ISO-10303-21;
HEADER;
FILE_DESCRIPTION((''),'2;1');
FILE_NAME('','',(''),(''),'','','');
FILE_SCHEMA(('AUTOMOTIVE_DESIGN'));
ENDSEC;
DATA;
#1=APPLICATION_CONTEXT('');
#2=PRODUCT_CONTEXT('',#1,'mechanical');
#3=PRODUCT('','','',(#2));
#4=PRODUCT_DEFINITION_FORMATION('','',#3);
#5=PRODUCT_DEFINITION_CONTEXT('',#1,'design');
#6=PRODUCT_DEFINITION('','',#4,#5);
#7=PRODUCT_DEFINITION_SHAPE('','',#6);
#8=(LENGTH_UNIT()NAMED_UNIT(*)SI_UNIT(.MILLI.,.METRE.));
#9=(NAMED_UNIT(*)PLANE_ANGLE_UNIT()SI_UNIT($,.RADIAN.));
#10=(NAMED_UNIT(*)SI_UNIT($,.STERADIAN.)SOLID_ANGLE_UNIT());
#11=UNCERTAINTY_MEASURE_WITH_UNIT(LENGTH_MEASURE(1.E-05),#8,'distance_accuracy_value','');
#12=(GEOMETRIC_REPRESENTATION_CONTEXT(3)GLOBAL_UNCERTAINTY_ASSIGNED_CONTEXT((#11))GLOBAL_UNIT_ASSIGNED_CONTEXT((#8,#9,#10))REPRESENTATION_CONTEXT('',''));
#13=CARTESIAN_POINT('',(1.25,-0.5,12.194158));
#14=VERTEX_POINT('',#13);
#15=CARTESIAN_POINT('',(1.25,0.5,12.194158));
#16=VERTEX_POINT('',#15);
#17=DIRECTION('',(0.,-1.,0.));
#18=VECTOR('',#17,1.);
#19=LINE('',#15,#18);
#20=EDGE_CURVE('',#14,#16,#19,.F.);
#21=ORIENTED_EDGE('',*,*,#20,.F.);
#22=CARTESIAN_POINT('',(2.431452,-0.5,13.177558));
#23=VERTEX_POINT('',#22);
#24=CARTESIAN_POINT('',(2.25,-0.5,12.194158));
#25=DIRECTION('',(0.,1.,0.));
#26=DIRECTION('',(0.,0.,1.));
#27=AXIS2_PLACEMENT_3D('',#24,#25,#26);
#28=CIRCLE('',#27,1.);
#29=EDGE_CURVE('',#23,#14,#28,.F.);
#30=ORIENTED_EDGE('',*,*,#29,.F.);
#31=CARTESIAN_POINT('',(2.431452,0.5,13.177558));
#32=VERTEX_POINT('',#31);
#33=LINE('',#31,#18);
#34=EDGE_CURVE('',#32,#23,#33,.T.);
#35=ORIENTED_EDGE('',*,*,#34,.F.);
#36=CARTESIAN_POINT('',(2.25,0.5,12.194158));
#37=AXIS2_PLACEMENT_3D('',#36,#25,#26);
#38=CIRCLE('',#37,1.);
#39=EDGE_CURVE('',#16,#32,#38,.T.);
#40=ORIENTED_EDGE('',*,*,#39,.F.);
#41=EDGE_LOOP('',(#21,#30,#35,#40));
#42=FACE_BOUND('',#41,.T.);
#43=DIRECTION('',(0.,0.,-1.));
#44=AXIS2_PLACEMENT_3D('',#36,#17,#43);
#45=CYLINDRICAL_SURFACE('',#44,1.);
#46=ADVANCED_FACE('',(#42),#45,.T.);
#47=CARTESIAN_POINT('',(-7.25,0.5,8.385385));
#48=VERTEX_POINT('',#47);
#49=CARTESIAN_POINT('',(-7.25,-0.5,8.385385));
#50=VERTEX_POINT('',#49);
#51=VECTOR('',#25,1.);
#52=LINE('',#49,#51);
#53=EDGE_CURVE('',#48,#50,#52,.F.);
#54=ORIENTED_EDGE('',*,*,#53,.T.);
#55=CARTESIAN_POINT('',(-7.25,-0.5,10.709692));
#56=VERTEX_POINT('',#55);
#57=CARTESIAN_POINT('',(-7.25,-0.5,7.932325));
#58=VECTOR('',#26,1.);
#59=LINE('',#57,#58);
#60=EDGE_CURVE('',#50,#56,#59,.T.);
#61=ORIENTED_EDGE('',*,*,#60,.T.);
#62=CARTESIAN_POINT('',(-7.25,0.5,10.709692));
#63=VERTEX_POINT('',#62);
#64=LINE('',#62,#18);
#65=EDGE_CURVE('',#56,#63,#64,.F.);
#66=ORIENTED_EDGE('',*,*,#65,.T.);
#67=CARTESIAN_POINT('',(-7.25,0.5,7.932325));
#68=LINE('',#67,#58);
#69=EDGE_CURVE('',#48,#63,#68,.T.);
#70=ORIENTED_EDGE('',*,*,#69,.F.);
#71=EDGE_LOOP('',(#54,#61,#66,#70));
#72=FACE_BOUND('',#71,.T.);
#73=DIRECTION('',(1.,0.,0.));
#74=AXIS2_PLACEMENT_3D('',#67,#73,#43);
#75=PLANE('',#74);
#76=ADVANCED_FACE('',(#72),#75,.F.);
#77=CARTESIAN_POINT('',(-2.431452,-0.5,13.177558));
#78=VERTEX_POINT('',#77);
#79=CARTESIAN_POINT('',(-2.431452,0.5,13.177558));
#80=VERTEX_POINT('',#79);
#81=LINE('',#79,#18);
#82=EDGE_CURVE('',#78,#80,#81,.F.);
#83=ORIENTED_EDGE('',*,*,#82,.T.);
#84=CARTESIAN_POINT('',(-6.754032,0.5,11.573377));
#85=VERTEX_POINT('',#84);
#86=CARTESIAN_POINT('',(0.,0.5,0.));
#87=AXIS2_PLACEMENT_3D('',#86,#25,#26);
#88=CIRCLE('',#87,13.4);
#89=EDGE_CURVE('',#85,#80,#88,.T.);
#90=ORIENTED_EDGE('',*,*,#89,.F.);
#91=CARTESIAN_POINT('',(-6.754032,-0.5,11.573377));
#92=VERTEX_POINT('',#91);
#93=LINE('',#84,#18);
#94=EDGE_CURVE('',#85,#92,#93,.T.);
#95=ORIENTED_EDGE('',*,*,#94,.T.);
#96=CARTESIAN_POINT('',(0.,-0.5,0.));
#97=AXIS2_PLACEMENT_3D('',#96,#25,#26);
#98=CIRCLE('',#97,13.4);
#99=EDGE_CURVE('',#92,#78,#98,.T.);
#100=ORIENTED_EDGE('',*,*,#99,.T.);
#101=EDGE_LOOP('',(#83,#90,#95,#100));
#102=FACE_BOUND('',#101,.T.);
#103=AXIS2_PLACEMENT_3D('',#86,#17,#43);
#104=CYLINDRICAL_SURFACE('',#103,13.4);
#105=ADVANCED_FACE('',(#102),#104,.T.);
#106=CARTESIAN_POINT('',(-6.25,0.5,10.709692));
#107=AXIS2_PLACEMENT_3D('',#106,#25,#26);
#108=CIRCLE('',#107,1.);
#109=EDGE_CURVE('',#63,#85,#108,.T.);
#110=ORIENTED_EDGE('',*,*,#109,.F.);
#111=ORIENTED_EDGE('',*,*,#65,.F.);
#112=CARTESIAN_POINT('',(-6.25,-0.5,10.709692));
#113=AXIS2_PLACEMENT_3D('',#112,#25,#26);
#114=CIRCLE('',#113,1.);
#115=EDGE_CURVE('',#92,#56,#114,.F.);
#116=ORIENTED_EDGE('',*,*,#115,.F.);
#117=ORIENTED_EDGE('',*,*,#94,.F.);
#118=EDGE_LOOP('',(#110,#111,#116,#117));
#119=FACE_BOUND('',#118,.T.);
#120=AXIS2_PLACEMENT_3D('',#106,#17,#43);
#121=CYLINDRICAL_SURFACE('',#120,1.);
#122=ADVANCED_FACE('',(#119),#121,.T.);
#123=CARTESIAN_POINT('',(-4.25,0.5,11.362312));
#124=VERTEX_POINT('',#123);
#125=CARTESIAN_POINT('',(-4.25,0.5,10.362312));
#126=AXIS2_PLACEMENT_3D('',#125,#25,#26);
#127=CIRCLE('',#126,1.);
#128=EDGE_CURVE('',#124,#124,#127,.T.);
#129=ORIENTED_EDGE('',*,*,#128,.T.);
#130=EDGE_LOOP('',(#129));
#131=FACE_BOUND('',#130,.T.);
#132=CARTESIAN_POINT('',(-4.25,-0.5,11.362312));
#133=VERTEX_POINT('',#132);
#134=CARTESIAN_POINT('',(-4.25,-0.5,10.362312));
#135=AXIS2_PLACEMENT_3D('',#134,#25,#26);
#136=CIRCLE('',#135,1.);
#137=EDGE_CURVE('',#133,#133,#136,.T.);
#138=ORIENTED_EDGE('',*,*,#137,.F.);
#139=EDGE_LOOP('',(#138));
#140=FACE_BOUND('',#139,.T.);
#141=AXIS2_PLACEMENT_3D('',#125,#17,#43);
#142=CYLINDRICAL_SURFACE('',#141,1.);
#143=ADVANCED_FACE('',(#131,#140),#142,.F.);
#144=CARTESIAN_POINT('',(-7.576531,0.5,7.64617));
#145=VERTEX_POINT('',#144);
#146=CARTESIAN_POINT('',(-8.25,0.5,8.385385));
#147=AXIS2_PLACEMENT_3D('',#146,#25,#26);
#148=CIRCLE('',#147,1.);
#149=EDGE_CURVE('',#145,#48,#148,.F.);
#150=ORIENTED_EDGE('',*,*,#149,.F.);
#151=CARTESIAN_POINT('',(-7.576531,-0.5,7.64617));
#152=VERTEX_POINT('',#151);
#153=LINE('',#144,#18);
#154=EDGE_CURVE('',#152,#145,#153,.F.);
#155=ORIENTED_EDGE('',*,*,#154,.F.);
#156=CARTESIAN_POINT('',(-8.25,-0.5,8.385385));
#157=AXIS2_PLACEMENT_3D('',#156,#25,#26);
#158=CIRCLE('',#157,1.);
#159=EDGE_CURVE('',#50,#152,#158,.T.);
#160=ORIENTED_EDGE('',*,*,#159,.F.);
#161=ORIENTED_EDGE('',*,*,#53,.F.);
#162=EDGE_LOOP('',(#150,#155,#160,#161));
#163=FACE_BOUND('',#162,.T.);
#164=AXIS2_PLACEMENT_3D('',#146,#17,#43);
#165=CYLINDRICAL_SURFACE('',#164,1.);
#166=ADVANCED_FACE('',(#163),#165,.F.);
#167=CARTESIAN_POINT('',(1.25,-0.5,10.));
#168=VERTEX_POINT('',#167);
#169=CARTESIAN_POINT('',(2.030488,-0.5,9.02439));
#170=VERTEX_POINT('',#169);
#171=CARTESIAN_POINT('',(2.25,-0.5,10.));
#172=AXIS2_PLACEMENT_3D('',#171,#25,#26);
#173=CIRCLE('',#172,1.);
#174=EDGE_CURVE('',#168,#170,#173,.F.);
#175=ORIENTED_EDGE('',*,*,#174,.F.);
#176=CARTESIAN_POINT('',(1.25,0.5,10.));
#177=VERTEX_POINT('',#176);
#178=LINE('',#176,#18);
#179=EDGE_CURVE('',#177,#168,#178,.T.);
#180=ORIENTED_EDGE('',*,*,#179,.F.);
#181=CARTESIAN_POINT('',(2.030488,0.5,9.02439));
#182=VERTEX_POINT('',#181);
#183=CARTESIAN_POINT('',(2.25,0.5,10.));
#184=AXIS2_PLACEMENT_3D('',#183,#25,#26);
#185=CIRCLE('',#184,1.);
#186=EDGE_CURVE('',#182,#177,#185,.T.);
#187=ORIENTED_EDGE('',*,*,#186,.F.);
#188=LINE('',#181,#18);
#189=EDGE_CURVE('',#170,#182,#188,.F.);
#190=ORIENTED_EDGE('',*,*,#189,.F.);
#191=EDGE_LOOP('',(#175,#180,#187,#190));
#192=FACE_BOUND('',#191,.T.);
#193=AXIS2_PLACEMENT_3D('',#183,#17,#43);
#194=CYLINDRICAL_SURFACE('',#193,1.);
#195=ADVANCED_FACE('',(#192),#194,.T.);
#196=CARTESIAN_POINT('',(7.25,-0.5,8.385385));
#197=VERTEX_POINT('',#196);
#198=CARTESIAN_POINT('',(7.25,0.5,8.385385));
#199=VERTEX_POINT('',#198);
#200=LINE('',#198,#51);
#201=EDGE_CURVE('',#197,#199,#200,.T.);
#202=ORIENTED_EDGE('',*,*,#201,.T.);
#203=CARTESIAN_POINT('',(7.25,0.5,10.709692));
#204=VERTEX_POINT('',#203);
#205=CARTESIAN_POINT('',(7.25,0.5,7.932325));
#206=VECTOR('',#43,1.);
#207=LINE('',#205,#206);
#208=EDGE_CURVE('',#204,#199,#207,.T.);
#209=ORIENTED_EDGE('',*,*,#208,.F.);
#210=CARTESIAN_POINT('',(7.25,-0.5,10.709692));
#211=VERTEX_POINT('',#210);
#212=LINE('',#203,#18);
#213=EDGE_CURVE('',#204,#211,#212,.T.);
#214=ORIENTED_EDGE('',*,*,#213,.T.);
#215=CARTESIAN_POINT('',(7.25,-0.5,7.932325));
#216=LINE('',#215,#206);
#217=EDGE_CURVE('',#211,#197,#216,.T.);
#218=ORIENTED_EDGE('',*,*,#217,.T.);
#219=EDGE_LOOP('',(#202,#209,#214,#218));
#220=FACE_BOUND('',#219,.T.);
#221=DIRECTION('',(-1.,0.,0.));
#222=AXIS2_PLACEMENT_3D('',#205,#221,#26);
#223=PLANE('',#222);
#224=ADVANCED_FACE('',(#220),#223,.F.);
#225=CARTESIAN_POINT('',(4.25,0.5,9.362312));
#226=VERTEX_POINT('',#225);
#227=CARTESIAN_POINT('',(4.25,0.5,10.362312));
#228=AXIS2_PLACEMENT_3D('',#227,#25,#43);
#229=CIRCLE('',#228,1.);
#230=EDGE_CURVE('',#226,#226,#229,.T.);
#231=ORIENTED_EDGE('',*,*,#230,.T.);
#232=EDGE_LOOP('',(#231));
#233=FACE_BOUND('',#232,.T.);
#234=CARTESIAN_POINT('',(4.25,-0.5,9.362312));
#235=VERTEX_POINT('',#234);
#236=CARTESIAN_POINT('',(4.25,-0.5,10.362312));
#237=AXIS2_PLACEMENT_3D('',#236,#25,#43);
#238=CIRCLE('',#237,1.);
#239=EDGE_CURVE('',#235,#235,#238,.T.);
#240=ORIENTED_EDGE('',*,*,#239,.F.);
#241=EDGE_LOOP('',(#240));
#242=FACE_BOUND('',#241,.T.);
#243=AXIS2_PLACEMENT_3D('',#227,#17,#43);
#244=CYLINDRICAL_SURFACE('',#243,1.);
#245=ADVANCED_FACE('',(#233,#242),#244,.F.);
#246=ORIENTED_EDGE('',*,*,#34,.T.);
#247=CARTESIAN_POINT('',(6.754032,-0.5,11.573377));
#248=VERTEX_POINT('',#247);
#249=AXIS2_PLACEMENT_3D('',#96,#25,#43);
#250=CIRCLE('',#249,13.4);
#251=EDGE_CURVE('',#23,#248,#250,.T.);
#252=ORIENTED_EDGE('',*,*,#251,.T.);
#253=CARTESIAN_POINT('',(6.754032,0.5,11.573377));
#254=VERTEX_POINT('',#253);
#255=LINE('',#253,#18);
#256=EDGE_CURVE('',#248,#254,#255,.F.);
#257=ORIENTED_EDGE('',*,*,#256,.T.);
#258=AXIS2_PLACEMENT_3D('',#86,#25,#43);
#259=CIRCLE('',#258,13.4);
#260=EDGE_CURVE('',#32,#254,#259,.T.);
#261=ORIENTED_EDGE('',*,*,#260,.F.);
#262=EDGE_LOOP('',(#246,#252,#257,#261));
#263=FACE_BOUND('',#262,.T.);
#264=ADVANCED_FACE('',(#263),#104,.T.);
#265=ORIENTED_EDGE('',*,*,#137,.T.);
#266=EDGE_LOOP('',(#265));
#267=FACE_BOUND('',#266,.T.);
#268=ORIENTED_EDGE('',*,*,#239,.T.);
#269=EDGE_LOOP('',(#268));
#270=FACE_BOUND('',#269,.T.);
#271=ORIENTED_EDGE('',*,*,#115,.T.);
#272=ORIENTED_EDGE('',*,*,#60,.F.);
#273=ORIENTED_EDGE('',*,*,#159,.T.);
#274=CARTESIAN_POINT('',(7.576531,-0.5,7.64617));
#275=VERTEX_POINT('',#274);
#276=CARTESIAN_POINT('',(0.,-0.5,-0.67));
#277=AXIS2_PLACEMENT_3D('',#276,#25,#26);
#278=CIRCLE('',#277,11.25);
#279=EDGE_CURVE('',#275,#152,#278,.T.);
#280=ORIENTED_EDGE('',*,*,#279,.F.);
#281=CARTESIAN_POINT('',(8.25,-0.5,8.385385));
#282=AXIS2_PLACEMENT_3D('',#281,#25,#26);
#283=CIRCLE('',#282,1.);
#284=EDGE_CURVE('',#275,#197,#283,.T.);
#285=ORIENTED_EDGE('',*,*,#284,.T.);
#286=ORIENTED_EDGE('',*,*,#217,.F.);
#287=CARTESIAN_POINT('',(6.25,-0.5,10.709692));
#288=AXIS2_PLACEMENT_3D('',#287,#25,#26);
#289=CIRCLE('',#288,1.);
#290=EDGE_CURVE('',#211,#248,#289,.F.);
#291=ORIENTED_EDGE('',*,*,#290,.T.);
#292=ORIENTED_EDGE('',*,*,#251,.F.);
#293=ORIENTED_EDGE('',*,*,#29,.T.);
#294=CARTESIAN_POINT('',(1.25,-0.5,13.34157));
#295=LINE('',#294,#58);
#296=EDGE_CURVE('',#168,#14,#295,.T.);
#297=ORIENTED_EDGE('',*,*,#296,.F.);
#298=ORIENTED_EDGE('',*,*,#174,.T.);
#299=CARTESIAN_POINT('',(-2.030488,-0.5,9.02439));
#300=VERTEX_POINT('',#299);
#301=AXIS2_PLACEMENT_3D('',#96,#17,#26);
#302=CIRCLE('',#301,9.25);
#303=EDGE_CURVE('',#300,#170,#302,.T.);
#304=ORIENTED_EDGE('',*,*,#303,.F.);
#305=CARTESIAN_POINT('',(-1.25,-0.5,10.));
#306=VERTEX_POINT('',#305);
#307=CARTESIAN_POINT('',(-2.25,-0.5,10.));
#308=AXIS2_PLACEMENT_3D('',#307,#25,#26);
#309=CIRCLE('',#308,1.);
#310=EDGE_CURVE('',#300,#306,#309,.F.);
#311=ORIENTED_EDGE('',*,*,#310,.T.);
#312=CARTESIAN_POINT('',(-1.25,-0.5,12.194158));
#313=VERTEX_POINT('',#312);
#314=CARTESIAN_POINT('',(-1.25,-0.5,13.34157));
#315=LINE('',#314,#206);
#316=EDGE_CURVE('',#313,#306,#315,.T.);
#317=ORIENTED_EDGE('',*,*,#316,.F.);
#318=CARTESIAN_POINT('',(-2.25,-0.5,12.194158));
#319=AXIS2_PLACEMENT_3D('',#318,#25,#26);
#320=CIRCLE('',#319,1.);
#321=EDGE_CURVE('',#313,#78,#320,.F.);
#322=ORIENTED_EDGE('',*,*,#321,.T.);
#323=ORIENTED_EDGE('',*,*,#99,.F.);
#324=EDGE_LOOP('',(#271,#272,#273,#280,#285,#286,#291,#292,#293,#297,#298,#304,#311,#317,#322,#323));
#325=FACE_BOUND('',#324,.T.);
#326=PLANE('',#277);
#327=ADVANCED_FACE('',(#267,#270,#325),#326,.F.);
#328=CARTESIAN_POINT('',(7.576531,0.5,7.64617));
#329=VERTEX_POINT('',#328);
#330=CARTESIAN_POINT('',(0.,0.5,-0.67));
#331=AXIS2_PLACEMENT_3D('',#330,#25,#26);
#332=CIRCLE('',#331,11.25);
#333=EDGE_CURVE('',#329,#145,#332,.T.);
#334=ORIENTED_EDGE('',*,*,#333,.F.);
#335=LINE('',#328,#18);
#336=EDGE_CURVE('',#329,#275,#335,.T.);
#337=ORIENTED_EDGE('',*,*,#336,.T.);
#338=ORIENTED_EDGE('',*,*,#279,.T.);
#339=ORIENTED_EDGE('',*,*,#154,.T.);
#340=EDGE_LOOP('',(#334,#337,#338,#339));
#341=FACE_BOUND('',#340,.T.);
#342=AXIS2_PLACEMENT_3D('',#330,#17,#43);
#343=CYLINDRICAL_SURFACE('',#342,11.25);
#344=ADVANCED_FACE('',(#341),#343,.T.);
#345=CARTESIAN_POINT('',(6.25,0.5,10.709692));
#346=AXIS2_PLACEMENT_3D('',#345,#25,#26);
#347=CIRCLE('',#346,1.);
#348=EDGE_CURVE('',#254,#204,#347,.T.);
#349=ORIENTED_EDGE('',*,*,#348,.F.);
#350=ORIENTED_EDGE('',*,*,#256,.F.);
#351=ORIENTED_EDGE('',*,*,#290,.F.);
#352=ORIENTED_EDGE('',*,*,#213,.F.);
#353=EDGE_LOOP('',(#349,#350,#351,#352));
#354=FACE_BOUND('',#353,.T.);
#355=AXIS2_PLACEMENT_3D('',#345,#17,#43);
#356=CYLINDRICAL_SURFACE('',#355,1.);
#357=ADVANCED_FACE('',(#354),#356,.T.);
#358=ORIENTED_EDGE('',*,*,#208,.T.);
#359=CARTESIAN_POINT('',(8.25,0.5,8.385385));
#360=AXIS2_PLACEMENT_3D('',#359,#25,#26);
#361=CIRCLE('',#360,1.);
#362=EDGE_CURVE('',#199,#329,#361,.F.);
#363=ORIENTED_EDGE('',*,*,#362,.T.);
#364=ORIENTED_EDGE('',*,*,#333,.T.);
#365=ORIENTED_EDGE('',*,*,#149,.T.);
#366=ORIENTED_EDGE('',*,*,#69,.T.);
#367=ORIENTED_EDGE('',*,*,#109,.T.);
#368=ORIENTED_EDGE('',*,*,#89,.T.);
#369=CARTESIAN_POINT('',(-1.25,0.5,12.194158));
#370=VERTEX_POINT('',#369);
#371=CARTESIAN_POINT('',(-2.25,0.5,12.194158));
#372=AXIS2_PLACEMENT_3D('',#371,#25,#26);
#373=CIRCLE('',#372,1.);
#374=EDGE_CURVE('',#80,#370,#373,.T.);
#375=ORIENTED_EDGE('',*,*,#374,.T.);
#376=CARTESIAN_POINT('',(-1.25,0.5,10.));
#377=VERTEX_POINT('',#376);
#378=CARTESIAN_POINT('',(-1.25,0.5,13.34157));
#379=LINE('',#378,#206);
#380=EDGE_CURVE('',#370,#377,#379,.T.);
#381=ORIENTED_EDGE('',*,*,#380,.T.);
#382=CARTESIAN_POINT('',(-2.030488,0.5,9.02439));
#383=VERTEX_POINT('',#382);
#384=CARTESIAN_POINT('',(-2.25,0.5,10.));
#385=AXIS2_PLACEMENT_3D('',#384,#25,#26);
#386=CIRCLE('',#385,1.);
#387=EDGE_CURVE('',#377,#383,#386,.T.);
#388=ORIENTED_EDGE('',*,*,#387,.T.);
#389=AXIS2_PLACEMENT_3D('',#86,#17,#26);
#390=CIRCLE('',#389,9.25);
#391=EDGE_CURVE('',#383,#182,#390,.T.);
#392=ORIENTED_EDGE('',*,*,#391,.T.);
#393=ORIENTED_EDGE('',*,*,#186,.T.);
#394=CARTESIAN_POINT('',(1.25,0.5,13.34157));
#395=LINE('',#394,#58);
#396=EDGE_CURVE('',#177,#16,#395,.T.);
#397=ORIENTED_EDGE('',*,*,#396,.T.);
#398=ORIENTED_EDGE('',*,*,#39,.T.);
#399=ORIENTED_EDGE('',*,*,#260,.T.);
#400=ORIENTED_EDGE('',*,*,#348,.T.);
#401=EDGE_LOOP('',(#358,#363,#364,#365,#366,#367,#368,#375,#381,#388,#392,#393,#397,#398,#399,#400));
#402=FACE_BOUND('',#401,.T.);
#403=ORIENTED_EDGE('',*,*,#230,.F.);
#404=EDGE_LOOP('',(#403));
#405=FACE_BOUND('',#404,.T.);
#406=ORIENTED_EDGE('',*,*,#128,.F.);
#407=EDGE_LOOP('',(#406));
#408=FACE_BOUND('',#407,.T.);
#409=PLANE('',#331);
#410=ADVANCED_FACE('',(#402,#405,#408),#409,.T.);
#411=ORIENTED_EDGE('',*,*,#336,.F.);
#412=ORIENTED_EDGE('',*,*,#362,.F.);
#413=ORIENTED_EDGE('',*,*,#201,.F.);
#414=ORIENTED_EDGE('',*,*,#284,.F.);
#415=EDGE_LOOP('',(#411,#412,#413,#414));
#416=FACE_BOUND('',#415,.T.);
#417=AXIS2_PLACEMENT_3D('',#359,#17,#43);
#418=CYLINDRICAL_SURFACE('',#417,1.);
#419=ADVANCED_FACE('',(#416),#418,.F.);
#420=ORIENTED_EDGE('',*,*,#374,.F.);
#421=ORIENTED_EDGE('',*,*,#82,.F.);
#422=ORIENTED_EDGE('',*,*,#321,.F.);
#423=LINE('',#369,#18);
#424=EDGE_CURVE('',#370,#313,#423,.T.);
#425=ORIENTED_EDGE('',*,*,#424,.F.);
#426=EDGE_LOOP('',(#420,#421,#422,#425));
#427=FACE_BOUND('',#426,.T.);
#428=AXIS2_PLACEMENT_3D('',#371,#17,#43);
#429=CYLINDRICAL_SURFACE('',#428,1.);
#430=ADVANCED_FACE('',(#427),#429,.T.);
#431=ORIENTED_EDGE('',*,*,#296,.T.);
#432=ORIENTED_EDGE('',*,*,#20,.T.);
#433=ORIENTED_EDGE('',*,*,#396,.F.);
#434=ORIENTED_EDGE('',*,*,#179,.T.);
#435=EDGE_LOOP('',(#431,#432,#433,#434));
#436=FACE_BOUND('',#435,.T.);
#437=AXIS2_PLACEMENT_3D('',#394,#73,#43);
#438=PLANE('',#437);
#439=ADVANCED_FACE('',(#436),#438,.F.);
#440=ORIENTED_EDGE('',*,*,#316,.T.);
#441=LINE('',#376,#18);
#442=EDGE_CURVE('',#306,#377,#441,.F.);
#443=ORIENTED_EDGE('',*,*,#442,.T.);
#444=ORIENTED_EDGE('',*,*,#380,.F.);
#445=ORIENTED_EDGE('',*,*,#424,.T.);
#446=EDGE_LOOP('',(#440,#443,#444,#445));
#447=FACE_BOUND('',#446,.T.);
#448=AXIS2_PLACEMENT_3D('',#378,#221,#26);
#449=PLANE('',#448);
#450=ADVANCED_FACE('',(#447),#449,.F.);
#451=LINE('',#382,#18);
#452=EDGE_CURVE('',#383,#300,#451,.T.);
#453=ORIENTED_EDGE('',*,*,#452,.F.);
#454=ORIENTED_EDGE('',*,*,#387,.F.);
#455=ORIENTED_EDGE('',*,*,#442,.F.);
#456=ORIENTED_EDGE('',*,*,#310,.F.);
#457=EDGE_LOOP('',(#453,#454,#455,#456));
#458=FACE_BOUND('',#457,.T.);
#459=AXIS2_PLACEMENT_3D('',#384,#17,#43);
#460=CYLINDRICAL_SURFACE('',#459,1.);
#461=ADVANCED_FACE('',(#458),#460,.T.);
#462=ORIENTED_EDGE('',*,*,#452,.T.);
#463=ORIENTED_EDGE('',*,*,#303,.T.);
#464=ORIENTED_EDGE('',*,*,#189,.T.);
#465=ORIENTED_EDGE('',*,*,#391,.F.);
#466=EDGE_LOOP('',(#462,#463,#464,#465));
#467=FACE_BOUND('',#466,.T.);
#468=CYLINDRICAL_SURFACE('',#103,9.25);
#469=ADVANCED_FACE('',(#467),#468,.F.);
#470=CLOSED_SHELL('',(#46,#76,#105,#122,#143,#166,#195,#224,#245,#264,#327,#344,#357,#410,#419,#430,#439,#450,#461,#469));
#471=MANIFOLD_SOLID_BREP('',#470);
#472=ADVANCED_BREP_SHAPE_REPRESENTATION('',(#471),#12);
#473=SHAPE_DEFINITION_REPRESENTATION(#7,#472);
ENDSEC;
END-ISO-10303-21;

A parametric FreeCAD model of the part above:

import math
import FreeCAD as App
import Part
import Sketcher
Q = App.Units.Quantity


def edges_at(feature, points):
    """Names of the edges that pass closest to the given points."""
    edges = feature.Shape.Edges
    near = lambda p: min(range(len(edges)), key=lambda i: edges[i].distToShape(Part.Vertex(*p))[0])
    return sorted({f"Edge{near(p) + 1}" for p in points})

doc = App.newDocument("Part")
body = doc.addObject("PartDesign::Body", "Body")

sketch1 = doc.addObject("Sketcher::SketchObject", "Sketch")
body.addObject(sketch1)
sketch1.AttachmentSupport = (doc.XZ_Plane, [""])
sketch1.MapMode = "FlatFace"
sketch1.addGeometry(Part.LineSegment(App.Vector(-1.2, 13.3, 0), App.Vector(-1.2, 9.2, 0)), False)
sketch1.addGeometry(Part.ArcOfCircle(Part.Circle(App.Vector(0, 0, 0), App.Vector(0, 0, 1), 9.2), math.radians(98), math.radians(442)), False)
sketch1.addGeometry(Part.LineSegment(App.Vector(1.2, 9.2, 0), App.Vector(1.2, 13.3, 0)), False)
sketch1.addGeometry(Part.ArcOfCircle(Part.Circle(App.Vector(0, 0, 0), App.Vector(0, 0, 1), 13.4), math.radians(57), math.radians(85)), False)
sketch1.addGeometry(Part.LineSegment(App.Vector(7.2, 11.3, 0), App.Vector(7.2, 7.9, 0)), False)
sketch1.addGeometry(Part.ArcOfCircle(Part.Circle(App.Vector(0, -0.7, 0), App.Vector(0, 0, 1), 11.2), math.radians(130), math.radians(410)), False)
sketch1.addGeometry(Part.LineSegment(App.Vector(-7.2, 7.9, 0), App.Vector(-7.2, 11.3, 0)), False)
sketch1.addGeometry(Part.ArcOfCircle(Part.Circle(App.Vector(0, 0, 0), App.Vector(0, 0, 1), 13.4), math.radians(95), math.radians(123)), False)
sketch1.addGeometry(Part.Circle(App.Vector(-4.2, 10.4, 0), App.Vector(0, 0, 1), 1), False)
sketch1.addGeometry(Part.Circle(App.Vector(4.2, 10.4, 0), App.Vector(0, 0, 1), 1), False)
sketch1.addConstraint(Sketcher.Constraint("Coincident", 0, 2, 1, 1))
sketch1.addConstraint(Sketcher.Constraint("Coincident", 1, 2, 2, 1))
sketch1.addConstraint(Sketcher.Constraint("Coincident", 2, 2, 3, 2))
sketch1.addConstraint(Sketcher.Constraint("Coincident", 3, 1, 4, 1))
sketch1.addConstraint(Sketcher.Constraint("Coincident", 4, 2, 5, 2))
sketch1.addConstraint(Sketcher.Constraint("Coincident", 5, 1, 6, 1))
sketch1.addConstraint(Sketcher.Constraint("Coincident", 6, 2, 7, 2))
sketch1.addConstraint(Sketcher.Constraint("Coincident", 7, 1, 0, 1))
sketch1.addConstraint(Sketcher.Constraint("Vertical", 0))
sketch1.addConstraint(Sketcher.Constraint("Vertical", 2))
sketch1.addConstraint(Sketcher.Constraint("Vertical", 4))
sketch1.addConstraint(Sketcher.Constraint("Vertical", 6))
sketch1.addConstraint(Sketcher.Constraint("Coincident", 1, 3, -1, 1))
sketch1.addConstraint(Sketcher.Constraint("Coincident", 3, 3, -1, 1))
sketch1.addConstraint(Sketcher.Constraint("Coincident", 7, 3, -1, 1))
sketch1.addConstraint(Sketcher.Constraint("Equal", 3, 7))
sketch1.addConstraint(Sketcher.Constraint("Equal", 8, 9))
sketch1.addConstraint(Sketcher.Constraint("Symmetric", 8, 3, 9, 3, -2))
sketch1.addConstraint(Sketcher.Constraint("Symmetric", 4, 2, 5, 1, -2))
sketch1.addConstraint(Sketcher.Constraint("Horizontal", 0, 2, 1, 2))
sketch1.addConstraint(Sketcher.Constraint("Diameter", 8, Q("2 mm")))
sketch1.addConstraint(Sketcher.Constraint("Radius", 3, Q("13.4 mm")))
sketch1.addConstraint(Sketcher.Constraint("Radius", 1, Q("9.25 mm")))
sketch1.addConstraint(Sketcher.Constraint("Radius", 5, Q("11.25 mm")))
sketch1.addConstraint(Sketcher.Constraint("DistanceX", 8, 3, 0, 2, Q("3 mm")))
sketch1.addConstraint(Sketcher.Constraint("DistanceX", 9, 3, 3, 1, Q("3 mm")))
sketch1.addConstraint(Sketcher.Constraint("DistanceX", 8, 3, 9, 3, Q("8.5 mm")))
sketch1.addConstraint(Sketcher.Constraint("DistanceY", 5, 3, -1, 1, Q("0.67 mm")))
sketch1.addConstraint(Sketcher.Constraint("DistanceY", -1, 1, 8, 3, Q("10.362312 mm")))
pad1 = doc.addObject("PartDesign::Pad", "Pad")
body.addObject(pad1)
pad1.Profile = sketch1
pad1.Length = 1
pad1.Midplane = True
doc.recompute()

fillet = doc.addObject("PartDesign::Fillet", "Fillet")
body.addObject(fillet)
fillet.Base = (pad1, edges_at(pad1, [
    (7.25, 0, 7.932),
    (7.25, 0, 11.269),
    (1.25, 0, 13.342),
    (1.25, 0, 9.165),
    (-1.25, 0, 9.165),
    (-1.25, 0, 13.342),
    (-7.25, 0, 11.269),
    (-7.25, 0, 7.932),
]))
fillet.Radius = 1

doc.recompute()
